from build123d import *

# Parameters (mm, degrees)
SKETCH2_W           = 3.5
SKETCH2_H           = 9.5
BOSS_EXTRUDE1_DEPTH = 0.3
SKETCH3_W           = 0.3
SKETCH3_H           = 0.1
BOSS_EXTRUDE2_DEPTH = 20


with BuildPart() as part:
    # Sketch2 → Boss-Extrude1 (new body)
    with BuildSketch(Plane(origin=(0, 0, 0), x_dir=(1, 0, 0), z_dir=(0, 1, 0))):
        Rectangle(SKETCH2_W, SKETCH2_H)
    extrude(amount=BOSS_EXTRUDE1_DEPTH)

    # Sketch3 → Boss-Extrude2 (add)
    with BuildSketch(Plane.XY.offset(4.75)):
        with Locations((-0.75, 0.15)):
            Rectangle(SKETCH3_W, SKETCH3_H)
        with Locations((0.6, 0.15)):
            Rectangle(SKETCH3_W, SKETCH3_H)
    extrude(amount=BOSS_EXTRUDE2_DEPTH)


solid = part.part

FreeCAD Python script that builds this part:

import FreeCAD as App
import Part
import Sketcher

V = App.Vector
Q = App.Units.Quantity


def add_polygon(sketch, points):
    """Adds a closed chain of lines whose ends are joined by coincident constraints."""
    first, n = sketch.GeometryCount, len(points)
    for a, b in zip(points, points[1:] + points[:1]):
        sketch.addGeometry(Part.LineSegment(App.Vector(*a, 0), App.Vector(*b, 0)), False)
    for i in range(n):
        sketch.addConstraint(Sketcher.Constraint("Coincident", first + i, 2, first + (i + 1) % n, 1))

doc = App.newDocument("Part")
body = doc.addObject("PartDesign::Body", "Body")

# Sketch on XZ plane
sketch1 = body.newObject("Sketcher::SketchObject", "Sketch")
sketch1.AttachmentSupport = (doc.getObject("XZ_Plane"), [""])
sketch1.MapMode = "FlatFace"
add_polygon(sketch1, [(-1.75, -4.75), (-1.75, 4.75), (1.75, 4.75), (1.75, -4.75)])  # lines 0-3
sketch1.addConstraint(Sketcher.Constraint("Vertical", 0))
sketch1.addConstraint(Sketcher.Constraint("Horizontal", 1))
sketch1.addConstraint(Sketcher.Constraint("Vertical", 2))
sketch1.addConstraint(Sketcher.Constraint("Horizontal", 3))
sketch1.addConstraint(Sketcher.Constraint("Symmetric", 0, 2, 2, 2, -1, 1))
sketch1.addConstraint(Sketcher.Constraint("DistanceX", 1, 1, 1, 2, Q("3.5 mm")))
sketch1.addConstraint(Sketcher.Constraint("DistanceY", 0, 1, 0, 2, Q("9.5 mm")))
pad1 = body.newObject("PartDesign::Pad", "Pad")
pad1.Profile = sketch1
pad1.Length = 0.3
pad1.Reversed = True

# Sketch on XY plane
sketch2 = body.newObject("Sketcher::SketchObject", "Sketch001")
sketch2.AttachmentSupport = (doc.getObject("XY_Plane"), [""])
sketch2.MapMode = "FlatFace"
sketch2.AttachmentOffset = App.Placement(V(0, 0, 4.75), App.Rotation())
add_polygon(sketch2, [(-0.9, 0.2), (-0.9, 0.1), (-0.6, 0.1), (-0.6, 0.2)])  # lines 0-3
add_polygon(sketch2, [(0.45, 0.2), (0.45, 0.1), (0.75, 0.1), (0.75, 0.2)])  # lines 4-7
sketch2.addConstraint(Sketcher.Constraint("Vertical", 0))
sketch2.addConstraint(Sketcher.Constraint("Horizontal", 1))
sketch2.addConstraint(Sketcher.Constraint("Vertical", 2))
sketch2.addConstraint(Sketcher.Constraint("Horizontal", 3))
sketch2.addConstraint(Sketcher.Constraint("Vertical", 4))
sketch2.addConstraint(Sketcher.Constraint("Horizontal", 5))
sketch2.addConstraint(Sketcher.Constraint("Vertical", 6))
sketch2.addConstraint(Sketcher.Constraint("Horizontal", 7))
sketch2.addConstraint(Sketcher.Constraint("Horizontal", 1, 2, 4, 2))
sketch2.addConstraint(Sketcher.Constraint("Horizontal", 3, 2, 6, 2))
sketch2.addConstraint(Sketcher.Constraint("Equal", 3, 5))
sketch2.addConstraint(Sketcher.Constraint("DistanceX", 1, 1, 1, 2, Q("0.3 mm")))
sketch2.addConstraint(Sketcher.Constraint("DistanceY", 0, 2, 0, 1, Q("0.1 mm")))
sketch2.addConstraint(Sketcher.Constraint("DistanceX", 0, 2, -1, 1, Q("0.9 mm")))
sketch2.addConstraint(Sketcher.Constraint("DistanceY", -1, 1, 0, 2, Q("0.1 mm")))
sketch2.addConstraint(Sketcher.Constraint("DistanceX", -1, 1, 4, 2, Q("0.45 mm")))
pad2 = body.newObject("PartDesign::Pad", "Pad001")
pad2.Profile = sketch2
pad2.Length = 20

doc.recompute()
